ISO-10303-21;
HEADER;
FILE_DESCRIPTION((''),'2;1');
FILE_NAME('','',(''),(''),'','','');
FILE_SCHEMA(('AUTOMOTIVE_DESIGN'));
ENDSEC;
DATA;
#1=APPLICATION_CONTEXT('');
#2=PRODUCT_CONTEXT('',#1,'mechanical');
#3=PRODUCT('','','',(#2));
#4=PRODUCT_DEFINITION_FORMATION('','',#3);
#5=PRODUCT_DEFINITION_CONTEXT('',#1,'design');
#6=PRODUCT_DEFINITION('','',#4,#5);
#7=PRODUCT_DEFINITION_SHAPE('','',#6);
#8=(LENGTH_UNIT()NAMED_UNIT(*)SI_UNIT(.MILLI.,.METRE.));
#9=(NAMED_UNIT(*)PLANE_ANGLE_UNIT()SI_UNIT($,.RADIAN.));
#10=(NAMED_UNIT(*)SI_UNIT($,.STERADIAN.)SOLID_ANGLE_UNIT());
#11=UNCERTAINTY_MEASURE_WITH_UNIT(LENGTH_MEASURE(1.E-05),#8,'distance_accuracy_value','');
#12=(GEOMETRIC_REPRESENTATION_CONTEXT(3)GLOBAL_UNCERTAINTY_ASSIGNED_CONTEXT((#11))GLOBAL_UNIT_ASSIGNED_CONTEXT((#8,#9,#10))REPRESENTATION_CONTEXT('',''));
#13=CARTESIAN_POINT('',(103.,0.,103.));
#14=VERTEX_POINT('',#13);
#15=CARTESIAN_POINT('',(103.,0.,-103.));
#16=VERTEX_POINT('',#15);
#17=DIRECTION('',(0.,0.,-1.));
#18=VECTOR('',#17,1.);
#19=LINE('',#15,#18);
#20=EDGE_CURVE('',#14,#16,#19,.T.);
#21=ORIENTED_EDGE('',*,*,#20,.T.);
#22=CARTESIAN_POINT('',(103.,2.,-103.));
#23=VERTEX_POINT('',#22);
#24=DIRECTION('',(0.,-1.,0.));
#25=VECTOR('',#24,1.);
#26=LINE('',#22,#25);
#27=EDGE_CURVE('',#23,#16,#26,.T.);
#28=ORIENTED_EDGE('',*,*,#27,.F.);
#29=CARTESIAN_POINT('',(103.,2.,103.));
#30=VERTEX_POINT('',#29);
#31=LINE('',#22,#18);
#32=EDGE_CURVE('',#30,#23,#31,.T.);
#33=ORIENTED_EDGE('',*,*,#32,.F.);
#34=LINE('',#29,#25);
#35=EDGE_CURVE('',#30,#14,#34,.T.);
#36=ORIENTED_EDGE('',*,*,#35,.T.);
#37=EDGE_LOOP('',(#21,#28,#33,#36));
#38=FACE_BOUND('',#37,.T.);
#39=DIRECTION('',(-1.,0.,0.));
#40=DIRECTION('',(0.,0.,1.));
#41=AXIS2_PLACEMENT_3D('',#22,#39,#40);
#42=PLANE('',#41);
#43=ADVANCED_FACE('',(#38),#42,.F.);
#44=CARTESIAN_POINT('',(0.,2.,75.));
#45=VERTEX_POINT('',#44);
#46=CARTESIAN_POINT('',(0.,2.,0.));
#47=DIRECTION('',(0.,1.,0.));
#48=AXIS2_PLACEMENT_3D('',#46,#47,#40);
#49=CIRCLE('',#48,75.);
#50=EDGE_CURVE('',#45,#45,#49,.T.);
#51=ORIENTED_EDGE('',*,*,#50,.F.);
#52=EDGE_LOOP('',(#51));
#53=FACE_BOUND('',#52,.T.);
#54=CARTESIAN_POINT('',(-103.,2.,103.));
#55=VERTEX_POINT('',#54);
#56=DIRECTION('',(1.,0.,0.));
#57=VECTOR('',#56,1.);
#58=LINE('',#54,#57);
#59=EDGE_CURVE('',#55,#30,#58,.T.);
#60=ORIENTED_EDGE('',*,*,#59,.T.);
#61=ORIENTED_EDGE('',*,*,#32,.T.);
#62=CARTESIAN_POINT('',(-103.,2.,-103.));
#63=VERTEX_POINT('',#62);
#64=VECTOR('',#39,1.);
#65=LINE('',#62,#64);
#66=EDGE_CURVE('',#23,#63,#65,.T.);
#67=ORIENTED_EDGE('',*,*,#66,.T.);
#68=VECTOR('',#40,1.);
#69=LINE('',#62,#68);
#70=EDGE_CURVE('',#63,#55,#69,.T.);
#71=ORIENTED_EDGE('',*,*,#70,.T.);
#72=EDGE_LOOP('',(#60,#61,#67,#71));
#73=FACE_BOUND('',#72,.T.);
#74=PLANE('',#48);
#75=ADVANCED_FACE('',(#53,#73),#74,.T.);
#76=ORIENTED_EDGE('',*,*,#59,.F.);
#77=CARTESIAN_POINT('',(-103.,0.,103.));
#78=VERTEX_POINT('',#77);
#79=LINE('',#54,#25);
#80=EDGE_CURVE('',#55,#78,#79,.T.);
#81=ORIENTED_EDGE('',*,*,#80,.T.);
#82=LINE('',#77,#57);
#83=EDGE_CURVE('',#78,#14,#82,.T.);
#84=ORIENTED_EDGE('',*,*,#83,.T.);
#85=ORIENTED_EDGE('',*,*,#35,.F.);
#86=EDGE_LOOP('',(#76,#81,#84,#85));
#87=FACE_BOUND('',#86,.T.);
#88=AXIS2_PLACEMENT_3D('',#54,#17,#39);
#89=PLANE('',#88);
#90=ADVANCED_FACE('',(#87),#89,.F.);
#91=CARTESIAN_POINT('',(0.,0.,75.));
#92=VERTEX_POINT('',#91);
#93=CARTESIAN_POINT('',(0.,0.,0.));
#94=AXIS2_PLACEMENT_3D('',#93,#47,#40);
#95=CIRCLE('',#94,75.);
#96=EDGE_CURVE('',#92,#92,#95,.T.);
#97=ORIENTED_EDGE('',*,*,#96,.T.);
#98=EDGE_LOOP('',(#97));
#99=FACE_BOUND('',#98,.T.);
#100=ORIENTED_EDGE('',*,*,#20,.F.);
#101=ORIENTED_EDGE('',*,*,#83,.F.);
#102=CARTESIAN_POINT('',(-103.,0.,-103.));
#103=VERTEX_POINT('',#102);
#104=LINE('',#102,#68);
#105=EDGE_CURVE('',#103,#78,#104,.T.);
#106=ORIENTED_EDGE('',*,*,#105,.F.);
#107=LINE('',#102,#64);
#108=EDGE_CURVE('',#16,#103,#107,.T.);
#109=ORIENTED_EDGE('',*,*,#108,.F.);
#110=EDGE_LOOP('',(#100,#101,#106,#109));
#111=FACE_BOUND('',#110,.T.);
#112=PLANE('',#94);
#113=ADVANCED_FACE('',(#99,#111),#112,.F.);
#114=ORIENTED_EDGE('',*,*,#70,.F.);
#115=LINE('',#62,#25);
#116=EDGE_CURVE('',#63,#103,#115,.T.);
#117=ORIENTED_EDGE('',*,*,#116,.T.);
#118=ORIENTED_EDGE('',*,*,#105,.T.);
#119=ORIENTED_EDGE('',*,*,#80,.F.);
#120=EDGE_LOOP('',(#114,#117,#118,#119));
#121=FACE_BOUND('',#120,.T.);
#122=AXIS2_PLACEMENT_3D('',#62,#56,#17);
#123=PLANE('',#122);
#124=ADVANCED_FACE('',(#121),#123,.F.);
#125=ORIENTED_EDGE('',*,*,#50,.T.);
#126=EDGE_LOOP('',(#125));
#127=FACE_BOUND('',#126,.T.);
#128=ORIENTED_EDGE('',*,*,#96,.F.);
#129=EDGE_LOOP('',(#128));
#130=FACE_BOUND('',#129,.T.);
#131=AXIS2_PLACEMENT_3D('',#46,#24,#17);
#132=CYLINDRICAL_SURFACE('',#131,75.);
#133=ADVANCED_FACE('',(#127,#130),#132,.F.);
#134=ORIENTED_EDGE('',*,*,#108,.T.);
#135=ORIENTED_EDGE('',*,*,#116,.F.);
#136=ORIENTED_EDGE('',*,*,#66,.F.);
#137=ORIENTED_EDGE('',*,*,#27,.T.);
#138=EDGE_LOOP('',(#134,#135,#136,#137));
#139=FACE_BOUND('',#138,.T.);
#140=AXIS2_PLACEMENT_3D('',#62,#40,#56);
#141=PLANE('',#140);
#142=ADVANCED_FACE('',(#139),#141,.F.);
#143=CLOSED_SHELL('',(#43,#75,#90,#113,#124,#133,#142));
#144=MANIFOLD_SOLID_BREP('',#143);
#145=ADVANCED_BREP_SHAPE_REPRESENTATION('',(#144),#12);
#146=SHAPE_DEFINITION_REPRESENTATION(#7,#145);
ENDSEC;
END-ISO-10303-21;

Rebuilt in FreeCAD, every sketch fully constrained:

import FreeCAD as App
import Part
import Sketcher
from FreeCAD import Vector

doc = App.newDocument("Part")
params = doc.addObject("Spreadsheet::Sheet", "Params")
for row, (alias, value) in enumerate([
    ("sketch1_diameter", "150 mm"),
    ("sketch1_width", "206 mm"),
    ("pad1_length", "2 mm"),
], start=1):
    params.set(f"A{row}", alias)
    params.set(f"B{row}", "=" + value)
    params.setAlias(f"B{row}", alias)

body = doc.addObject("PartDesign::Body", "Body")

sketch1 = doc.addObject("Sketcher::SketchObject", "Sketch")
body.addObject(sketch1)
sketch1.AttachmentSupport = (doc.XZ_Plane, [""])
sketch1.MapMode = "FlatFace"
sketch1.addGeometry(Part.LineSegment(Vector(-103, -103, 0), Vector(-103, 103, 0)), False)
sketch1.addGeometry(Part.LineSegment(Vector(-103, 103, 0), Vector(103, 103, 0)), False)
sketch1.addGeometry(Part.LineSegment(Vector(103, 103, 0), Vector(103, -103, 0)), False)
sketch1.addGeometry(Part.LineSegment(Vector(103, -103, 0), Vector(-103, -103, 0)), False)
sketch1.addGeometry(Part.Circle(Vector(0, 0, 0), Vector(0, 0, 1), 75), False)
sketch1.addConstraint(Sketcher.Constraint("Coincident", 0, 2, 1, 1))
sketch1.addConstraint(Sketcher.Constraint("Coincident", 1, 2, 2, 1))
sketch1.addConstraint(Sketcher.Constraint("Coincident", 2, 2, 3, 1))
sketch1.addConstraint(Sketcher.Constraint("Coincident", 3, 2, 0, 1))
sketch1.addConstraint(Sketcher.Constraint("Vertical", 0))
sketch1.addConstraint(Sketcher.Constraint("Horizontal", 1))
sketch1.addConstraint(Sketcher.Constraint("Vertical", 2))
sketch1.addConstraint(Sketcher.Constraint("Horizontal", 3))
sketch1.addConstraint(Sketcher.Constraint("Coincident", 4, 3, -1, 1))
sketch1.addConstraint(Sketcher.Constraint("Symmetric", 0, 2, 2, 2, -1, 1))
sketch1.addConstraint(Sketcher.Constraint("Equal", 3, 0))
sketch1.addConstraint(Sketcher.Constraint("Diameter", 4, 150.0))
sketch1.addConstraint(Sketcher.Constraint("DistanceX", 1, 1, 1, 2, 206.0))
sketch1.setExpression("Constraints[11]", "Params.sketch1_diameter")
sketch1.setExpression("Constraints[12]", "Params.sketch1_width")
pad1 = doc.addObject("PartDesign::Pad", "Pad")
body.addObject(pad1)
pad1.Profile = sketch1
pad1.setExpression("Length", "Params.pad1_length")
pad1.Reversed = True

doc.recompute()
